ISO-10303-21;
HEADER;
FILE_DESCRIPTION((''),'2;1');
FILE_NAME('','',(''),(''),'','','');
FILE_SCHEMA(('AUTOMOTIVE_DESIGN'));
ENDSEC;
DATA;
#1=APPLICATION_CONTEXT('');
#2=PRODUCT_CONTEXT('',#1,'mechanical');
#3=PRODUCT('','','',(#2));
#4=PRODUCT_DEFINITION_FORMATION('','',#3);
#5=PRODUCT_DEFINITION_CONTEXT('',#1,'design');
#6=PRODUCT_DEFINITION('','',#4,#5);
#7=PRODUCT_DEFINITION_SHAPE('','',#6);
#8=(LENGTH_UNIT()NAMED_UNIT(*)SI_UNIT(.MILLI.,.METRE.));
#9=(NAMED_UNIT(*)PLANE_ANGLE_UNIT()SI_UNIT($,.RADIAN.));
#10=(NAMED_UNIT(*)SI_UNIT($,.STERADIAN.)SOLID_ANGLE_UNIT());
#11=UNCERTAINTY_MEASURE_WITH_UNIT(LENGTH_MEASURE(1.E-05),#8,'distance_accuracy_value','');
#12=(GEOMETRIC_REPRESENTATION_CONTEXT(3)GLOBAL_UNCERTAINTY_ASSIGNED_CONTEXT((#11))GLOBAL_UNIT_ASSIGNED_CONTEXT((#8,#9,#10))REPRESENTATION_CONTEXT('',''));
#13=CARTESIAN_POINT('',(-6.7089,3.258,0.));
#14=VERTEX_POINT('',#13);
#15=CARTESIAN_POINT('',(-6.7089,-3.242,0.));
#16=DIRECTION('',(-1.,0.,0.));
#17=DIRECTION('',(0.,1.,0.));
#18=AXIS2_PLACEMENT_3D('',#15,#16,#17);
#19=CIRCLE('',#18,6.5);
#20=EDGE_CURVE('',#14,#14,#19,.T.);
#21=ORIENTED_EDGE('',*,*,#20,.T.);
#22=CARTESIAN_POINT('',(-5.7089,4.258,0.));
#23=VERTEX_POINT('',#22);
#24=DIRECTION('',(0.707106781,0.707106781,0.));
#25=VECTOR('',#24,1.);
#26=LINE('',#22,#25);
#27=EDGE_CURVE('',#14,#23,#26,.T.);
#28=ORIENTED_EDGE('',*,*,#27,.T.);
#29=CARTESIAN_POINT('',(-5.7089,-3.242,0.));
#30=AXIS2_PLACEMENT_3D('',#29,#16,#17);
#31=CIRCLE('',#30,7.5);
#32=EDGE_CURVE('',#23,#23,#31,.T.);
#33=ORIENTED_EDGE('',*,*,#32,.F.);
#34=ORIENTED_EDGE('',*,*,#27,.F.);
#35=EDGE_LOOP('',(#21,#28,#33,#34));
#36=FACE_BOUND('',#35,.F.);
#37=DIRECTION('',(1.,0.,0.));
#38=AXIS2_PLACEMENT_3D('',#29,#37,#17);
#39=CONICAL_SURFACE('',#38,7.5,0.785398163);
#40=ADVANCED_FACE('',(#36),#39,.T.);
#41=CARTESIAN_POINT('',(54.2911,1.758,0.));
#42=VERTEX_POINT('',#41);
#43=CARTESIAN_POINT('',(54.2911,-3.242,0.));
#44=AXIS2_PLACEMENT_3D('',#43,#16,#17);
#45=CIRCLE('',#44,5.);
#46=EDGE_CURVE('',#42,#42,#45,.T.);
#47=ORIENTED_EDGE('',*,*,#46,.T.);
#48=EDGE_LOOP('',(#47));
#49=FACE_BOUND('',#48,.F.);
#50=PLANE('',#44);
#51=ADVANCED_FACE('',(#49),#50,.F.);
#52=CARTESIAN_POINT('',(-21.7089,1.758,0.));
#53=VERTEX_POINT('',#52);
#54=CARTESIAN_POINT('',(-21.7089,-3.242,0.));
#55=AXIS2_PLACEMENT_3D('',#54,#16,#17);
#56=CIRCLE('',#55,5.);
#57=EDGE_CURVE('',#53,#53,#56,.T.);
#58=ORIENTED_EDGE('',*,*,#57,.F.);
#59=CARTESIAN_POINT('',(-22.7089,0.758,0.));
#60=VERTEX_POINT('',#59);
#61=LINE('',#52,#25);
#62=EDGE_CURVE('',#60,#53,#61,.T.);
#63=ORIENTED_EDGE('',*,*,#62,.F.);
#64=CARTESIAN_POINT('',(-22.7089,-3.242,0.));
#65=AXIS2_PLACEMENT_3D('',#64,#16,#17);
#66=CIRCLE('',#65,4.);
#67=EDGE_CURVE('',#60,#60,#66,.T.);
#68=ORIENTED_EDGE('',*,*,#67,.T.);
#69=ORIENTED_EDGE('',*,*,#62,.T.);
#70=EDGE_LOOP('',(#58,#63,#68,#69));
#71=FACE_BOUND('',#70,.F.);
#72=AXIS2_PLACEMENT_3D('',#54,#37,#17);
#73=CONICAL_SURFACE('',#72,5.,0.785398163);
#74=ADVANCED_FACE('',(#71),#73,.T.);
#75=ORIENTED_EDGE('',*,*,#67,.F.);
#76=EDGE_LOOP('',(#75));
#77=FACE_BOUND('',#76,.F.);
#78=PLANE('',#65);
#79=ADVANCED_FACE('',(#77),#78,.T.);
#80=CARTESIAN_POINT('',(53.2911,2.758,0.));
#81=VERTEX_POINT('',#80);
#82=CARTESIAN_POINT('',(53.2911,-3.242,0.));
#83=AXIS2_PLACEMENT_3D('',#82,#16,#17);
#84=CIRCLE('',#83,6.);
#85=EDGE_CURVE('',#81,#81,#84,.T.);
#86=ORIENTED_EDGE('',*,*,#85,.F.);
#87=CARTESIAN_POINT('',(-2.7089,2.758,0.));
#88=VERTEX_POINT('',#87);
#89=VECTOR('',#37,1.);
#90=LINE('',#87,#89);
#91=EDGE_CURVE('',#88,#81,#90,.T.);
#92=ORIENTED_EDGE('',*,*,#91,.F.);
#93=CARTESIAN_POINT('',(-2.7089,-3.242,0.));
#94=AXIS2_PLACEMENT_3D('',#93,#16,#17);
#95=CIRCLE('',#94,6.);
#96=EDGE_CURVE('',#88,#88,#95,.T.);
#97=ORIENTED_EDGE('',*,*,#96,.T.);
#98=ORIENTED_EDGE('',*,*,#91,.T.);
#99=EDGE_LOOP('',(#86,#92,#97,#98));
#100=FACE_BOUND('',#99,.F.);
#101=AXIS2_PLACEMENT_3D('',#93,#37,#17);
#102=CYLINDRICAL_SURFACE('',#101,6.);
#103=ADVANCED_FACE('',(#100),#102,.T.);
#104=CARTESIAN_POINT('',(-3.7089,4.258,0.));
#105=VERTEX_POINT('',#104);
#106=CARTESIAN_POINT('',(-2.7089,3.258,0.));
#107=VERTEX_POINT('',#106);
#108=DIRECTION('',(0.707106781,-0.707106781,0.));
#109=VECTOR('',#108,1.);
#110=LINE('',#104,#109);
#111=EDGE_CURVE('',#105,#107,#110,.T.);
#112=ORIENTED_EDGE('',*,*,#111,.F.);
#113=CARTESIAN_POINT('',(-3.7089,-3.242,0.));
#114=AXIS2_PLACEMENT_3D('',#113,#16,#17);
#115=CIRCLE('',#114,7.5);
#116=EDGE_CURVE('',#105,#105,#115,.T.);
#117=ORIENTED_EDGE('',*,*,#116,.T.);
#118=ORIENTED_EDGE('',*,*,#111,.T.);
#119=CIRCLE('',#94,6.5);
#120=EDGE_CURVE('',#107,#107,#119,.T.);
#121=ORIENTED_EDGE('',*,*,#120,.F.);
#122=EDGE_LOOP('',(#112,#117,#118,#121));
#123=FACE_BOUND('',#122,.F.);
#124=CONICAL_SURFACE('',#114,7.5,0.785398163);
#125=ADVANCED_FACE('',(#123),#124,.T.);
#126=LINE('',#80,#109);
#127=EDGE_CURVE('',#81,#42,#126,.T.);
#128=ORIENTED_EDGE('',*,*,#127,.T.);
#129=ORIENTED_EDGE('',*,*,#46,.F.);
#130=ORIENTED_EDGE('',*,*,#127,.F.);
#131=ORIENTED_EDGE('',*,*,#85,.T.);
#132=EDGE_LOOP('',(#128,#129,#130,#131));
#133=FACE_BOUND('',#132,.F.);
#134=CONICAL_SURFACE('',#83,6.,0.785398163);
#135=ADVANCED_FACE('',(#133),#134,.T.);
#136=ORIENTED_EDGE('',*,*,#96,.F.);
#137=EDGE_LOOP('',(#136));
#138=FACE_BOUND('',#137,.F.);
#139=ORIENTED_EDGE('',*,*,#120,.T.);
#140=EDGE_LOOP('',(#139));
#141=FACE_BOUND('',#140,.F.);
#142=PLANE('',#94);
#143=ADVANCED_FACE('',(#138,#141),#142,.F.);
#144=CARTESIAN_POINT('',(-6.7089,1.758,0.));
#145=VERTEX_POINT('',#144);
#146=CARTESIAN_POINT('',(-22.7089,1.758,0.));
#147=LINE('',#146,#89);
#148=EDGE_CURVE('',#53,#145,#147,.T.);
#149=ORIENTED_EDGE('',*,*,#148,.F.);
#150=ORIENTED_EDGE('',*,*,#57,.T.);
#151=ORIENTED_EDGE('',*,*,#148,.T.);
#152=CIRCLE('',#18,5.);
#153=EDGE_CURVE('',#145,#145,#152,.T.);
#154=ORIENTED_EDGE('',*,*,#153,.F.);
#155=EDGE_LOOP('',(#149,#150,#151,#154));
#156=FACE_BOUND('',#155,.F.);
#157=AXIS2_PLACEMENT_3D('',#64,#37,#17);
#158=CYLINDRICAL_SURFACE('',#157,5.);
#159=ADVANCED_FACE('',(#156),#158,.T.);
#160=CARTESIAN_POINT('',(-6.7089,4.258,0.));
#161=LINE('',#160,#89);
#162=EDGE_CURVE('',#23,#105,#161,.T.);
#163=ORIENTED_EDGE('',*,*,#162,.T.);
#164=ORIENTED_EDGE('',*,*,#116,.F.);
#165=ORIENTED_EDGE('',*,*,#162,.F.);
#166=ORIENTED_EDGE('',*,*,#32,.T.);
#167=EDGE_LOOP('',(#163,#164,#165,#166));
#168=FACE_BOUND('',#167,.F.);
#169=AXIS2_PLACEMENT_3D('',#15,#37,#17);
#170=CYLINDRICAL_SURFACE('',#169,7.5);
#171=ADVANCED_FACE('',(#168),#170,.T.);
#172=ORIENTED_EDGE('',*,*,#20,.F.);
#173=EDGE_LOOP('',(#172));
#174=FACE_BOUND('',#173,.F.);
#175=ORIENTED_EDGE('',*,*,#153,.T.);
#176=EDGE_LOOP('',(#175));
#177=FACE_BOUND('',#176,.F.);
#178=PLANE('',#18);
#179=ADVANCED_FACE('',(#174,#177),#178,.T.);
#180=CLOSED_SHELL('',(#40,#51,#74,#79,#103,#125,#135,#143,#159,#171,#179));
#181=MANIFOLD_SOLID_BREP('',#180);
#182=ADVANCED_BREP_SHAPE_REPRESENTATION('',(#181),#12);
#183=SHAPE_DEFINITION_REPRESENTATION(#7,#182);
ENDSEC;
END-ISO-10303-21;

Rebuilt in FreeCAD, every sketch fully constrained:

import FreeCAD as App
import Part
import Sketcher
from FreeCAD import Vector
Q = App.Units.Quantity


def edges_at(feature, points):
    """Names of the edges that pass closest to the given points."""
    edges = feature.Shape.Edges
    near = lambda p: min(range(len(edges)), key=lambda i: edges[i].distToShape(Part.Vertex(*p))[0])
    return sorted({f"Edge{near(p) + 1}" for p in points})


def add_polygon(sketch, points):
    """Adds a closed chain of lines whose ends are joined by coincident constraints."""
    first, n = sketch.GeometryCount, len(points)
    for a, b in zip(points, points[1:] + points[:1]):
        sketch.addGeometry(Part.LineSegment(App.Vector(*a, 0), App.Vector(*b, 0)), False)
    for i in range(n):
        sketch.addConstraint(Sketcher.Constraint("Coincident", first + i, 2, first + (i + 1) % n, 1))

doc = App.newDocument("Part")
body = doc.addObject("PartDesign::Body", "Body")

# Sketch on XY plane
sketch1 = body.newObject("Sketcher::SketchObject", "Sketch")
sketch1.AttachmentSupport = (doc.getObject("XY_Plane"), [""])
sketch1.MapMode = "FlatFace"
add_polygon(sketch1, [(-22.7, 1.8), (-22.7, -3.2), (54.3, -3.2), (54.3, 2.8), (-2.7, 2.8), (-2.7, 4.3), (-6.7, 4.3), (-6.7, 1.8)])  # lines 0-7
sketch1.addGeometry(Part.LineSegment(Vector(54.3, -3.2, 0), Vector(-22.7, -3.2, 0)), True)  # axis
sketch1.addConstraint(Sketcher.Constraint("Vertical", 0))
sketch1.addConstraint(Sketcher.Constraint("Horizontal", 1))
sketch1.addConstraint(Sketcher.Constraint("Vertical", 2))
sketch1.addConstraint(Sketcher.Constraint("Horizontal", 3))
sketch1.addConstraint(Sketcher.Constraint("Vertical", 4))
sketch1.addConstraint(Sketcher.Constraint("Horizontal", 5))
sketch1.addConstraint(Sketcher.Constraint("Vertical", 6))
sketch1.addConstraint(Sketcher.Constraint("Horizontal", 7))
sketch1.addConstraint(Sketcher.Constraint("Horizontal", 8))
sketch1.addConstraint(Sketcher.Constraint("Coincident", 8, 1, 1, 2))
sketch1.addConstraint(Sketcher.Constraint("Vertical", 7, 2, 8, 2))
sketch1.addConstraint(Sketcher.Constraint("DistanceX", 3, 2, 3, 1, Q("57 mm")))
sketch1.addConstraint(Sketcher.Constraint("DistanceX", 5, 2, 5, 1, Q("4 mm")))
sketch1.addConstraint(Sketcher.Constraint("DistanceX", 7, 2, 7, 1, Q("16 mm")))
sketch1.addConstraint(Sketcher.Constraint("DistanceY", 0, 2, 0, 1, Q("5 mm")))
sketch1.addConstraint(Sketcher.Constraint("DistanceY", 2, 1, 2, 2, Q("6 mm")))
sketch1.addConstraint(Sketcher.Constraint("DistanceY", 0, 2, 4, 2, Q("7.5 mm")))
sketch1.addConstraint(Sketcher.Constraint("DistanceX", 0, 2, -1, 1, Q("22.709 mm")))
sketch1.addConstraint(Sketcher.Constraint("DistanceY", 0, 2, -1, 1, Q("3.242 mm")))
revolution = body.newObject("PartDesign::Revolution", "Revolution")
revolution.Profile = sketch1
revolution.ReferenceAxis = (sketch1, ["Axis0"])
revolution.Angle = 360
doc.recompute()

chamfer = body.newObject("PartDesign::Chamfer", "Chamfer")
chamfer.Base = (revolution, edges_at(revolution, [
    (54.291, -9.242, 0),
    (-22.709, -8.242, 0),
    (-6.709, -10.742, 0),
    (-2.709, -10.742, 0),
]))
chamfer.Size = 1

doc.recompute()
